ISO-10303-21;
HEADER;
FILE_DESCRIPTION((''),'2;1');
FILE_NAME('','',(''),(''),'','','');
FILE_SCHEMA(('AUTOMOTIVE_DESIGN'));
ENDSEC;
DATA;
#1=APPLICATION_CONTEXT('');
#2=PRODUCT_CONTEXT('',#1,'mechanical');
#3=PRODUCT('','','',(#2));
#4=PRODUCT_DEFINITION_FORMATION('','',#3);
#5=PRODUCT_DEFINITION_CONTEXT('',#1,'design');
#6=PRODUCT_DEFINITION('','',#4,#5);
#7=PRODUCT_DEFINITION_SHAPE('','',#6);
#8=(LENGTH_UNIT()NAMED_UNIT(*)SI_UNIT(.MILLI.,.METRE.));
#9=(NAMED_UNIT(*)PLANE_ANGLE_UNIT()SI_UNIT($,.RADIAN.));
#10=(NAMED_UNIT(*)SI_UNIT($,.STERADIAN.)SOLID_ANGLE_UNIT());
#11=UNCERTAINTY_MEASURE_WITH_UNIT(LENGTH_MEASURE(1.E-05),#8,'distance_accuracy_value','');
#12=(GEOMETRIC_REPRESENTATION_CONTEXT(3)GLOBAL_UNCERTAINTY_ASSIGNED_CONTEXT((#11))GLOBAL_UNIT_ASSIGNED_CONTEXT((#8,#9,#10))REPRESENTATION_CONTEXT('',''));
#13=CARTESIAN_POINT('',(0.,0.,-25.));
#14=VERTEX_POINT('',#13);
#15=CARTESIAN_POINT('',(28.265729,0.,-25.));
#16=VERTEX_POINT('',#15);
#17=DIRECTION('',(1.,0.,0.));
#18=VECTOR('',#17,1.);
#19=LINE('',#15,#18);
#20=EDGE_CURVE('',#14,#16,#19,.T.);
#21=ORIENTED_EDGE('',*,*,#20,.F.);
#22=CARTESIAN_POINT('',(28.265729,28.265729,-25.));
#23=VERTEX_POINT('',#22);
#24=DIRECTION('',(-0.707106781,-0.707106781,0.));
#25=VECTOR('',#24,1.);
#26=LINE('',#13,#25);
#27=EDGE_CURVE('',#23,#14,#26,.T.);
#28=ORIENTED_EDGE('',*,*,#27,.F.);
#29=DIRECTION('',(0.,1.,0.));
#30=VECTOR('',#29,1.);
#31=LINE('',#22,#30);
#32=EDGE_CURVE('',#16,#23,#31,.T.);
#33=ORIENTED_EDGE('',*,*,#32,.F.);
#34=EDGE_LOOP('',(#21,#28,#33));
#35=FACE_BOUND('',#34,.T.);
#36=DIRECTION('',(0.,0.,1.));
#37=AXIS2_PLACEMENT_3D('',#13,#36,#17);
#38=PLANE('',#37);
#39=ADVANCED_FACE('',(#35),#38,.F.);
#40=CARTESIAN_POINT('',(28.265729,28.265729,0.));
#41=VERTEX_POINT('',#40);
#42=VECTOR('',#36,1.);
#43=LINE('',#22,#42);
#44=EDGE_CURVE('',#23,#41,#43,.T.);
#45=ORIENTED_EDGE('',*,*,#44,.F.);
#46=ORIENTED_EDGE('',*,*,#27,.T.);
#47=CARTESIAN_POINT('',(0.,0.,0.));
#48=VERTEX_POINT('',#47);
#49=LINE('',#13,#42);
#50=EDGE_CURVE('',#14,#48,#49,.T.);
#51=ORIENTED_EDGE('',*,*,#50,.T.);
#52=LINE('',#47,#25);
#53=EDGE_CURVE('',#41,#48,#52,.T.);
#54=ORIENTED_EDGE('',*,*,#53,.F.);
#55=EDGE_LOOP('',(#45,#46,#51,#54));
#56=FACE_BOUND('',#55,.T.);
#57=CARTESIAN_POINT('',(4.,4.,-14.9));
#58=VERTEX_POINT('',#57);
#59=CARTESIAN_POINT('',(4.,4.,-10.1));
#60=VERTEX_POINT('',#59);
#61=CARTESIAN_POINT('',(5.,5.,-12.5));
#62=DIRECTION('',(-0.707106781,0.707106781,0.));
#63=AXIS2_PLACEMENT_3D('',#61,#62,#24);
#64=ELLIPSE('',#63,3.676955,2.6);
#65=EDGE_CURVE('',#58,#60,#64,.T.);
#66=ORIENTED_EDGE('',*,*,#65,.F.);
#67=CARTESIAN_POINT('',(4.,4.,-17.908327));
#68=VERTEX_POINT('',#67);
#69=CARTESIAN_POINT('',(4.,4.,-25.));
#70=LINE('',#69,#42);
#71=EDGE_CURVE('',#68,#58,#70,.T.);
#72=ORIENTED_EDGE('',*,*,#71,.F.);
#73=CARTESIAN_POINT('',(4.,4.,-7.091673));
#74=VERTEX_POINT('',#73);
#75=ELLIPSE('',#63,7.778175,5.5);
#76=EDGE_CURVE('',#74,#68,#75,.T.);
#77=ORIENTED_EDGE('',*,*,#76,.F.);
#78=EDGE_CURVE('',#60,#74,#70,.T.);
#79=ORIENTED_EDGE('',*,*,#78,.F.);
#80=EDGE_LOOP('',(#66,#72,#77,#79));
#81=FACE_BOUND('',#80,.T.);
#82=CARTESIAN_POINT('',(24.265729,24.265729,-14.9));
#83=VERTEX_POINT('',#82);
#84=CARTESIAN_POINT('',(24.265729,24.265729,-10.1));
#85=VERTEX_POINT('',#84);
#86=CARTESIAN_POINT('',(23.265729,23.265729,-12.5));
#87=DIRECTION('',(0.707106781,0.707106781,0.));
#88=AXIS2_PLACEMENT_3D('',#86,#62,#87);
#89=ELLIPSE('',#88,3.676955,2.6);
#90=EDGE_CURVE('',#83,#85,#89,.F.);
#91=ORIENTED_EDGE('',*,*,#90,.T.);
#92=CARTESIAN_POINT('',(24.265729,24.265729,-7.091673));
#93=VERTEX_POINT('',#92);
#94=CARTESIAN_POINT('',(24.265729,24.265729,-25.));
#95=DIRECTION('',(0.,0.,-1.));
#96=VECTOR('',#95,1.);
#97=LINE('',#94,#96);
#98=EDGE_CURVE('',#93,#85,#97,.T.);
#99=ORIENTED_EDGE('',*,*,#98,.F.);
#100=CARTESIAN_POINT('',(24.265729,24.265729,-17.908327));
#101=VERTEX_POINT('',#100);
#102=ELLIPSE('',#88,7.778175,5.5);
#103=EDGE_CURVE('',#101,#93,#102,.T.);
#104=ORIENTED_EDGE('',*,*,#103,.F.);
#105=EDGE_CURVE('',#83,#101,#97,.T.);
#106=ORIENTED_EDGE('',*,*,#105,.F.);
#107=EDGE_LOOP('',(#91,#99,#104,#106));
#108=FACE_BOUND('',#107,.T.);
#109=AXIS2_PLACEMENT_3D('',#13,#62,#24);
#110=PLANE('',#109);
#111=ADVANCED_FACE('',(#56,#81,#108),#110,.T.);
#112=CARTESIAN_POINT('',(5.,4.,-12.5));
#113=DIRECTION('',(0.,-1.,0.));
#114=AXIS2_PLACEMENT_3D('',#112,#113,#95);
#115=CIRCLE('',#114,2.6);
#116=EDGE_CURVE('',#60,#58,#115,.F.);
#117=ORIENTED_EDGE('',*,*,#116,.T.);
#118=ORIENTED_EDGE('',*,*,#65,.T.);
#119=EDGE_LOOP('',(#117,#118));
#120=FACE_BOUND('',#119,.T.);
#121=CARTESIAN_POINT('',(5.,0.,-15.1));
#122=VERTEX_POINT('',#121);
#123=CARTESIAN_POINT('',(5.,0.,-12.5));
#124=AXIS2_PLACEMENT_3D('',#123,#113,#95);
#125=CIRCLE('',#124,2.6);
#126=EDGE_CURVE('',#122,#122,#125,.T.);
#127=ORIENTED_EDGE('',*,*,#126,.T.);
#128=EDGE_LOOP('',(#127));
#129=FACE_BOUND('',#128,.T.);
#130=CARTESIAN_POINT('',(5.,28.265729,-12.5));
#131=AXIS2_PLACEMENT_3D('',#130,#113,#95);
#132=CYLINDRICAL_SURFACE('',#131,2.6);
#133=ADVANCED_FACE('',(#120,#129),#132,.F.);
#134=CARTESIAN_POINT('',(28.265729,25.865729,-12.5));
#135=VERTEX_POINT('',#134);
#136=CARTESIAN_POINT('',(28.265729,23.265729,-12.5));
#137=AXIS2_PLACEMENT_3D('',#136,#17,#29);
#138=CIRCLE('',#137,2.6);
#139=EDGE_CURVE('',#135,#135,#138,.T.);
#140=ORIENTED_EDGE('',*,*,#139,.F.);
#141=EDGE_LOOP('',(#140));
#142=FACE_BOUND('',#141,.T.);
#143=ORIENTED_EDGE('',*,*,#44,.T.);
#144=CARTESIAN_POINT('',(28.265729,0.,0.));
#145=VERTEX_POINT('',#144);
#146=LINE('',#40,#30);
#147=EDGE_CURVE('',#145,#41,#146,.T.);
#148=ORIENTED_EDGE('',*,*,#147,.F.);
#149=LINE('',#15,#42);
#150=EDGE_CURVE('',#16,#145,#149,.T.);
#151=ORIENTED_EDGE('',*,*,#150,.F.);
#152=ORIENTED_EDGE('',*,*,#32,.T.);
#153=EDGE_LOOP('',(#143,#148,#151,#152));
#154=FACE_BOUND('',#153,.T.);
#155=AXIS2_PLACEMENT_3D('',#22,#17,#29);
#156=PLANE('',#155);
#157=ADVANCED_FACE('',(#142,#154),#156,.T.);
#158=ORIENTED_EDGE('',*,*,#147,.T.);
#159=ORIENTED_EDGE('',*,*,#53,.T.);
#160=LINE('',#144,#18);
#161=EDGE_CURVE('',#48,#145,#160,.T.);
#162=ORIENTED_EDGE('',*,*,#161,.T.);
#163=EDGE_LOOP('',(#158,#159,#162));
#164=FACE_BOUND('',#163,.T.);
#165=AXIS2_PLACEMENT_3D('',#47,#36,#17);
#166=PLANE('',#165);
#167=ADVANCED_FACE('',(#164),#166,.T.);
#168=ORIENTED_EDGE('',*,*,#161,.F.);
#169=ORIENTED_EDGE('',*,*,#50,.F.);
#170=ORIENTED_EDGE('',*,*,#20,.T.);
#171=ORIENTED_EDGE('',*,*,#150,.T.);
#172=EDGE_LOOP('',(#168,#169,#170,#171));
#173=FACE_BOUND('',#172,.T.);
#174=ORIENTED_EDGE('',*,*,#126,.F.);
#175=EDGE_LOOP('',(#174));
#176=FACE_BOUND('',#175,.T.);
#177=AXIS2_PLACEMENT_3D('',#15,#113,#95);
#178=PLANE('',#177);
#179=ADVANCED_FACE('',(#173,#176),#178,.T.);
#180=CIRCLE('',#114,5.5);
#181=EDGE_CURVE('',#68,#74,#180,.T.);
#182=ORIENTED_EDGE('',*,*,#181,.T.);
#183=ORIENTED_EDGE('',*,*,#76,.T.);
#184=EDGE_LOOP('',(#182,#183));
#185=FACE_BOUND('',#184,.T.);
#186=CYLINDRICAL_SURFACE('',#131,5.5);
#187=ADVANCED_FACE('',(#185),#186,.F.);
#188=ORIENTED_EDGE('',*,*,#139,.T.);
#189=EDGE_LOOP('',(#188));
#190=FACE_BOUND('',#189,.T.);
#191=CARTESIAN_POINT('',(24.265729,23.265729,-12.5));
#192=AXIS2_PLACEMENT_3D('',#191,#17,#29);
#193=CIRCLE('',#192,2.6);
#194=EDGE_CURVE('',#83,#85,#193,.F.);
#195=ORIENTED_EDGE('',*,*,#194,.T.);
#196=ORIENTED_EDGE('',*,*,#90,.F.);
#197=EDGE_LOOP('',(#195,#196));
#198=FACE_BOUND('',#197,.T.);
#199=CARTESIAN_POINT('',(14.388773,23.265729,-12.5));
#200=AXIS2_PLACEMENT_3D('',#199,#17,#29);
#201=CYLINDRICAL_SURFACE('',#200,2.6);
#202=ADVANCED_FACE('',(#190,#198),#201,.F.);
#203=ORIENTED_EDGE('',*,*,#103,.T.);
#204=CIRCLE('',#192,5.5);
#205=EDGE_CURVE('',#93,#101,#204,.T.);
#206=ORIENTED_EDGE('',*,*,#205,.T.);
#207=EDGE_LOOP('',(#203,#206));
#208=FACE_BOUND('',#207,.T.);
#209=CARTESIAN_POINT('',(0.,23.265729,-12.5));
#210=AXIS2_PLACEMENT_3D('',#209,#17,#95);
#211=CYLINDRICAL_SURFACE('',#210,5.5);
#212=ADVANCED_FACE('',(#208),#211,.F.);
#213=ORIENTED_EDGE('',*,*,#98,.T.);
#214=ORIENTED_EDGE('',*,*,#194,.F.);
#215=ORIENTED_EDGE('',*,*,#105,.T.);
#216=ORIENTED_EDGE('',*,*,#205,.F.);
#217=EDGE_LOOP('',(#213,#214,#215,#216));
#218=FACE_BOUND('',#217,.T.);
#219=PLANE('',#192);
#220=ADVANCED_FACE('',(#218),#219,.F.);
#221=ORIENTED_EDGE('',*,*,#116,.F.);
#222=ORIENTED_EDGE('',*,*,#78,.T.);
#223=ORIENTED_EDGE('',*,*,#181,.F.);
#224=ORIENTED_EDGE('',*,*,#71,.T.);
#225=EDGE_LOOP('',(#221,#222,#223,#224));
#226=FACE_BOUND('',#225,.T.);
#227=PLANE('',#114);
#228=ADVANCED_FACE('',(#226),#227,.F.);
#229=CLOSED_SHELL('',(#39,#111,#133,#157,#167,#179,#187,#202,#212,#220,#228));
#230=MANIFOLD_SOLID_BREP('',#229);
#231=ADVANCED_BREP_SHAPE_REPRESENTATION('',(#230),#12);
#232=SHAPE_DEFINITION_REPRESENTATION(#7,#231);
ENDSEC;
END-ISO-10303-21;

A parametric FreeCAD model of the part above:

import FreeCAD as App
import Part
import Sketcher
from FreeCAD import Vector
Q = App.Units.Quantity

doc = App.newDocument("Part")
body = doc.addObject("PartDesign::Body", "Body")

# Sketch on XY plane
sketch1 = body.newObject("Sketcher::SketchObject", "Sketch")
sketch1.AttachmentSupport = (doc.getObject("XY_Plane"), [""])
sketch1.MapMode = "FlatFace"
sketch1.addGeometry(Part.LineSegment(Vector(28, 28, 0), Vector(0, 0, 0)), False)
sketch1.addGeometry(Part.LineSegment(Vector(0, 0, 0), Vector(28, 0, 0)), False)
sketch1.addGeometry(Part.LineSegment(Vector(28, 0, 0), Vector(28, 28, 0)), False)
sketch1.addConstraint(Sketcher.Constraint("Coincident", 0, 2, 1, 1))
sketch1.addConstraint(Sketcher.Constraint("Coincident", 1, 2, 2, 1))
sketch1.addConstraint(Sketcher.Constraint("Coincident", 2, 2, 0, 1))
sketch1.addConstraint(Sketcher.Constraint("Horizontal", 1))
sketch1.addConstraint(Sketcher.Constraint("Vertical", 2))
sketch1.addConstraint(Sketcher.Constraint("Coincident", 0, 2, -1, 1))
sketch1.addConstraint(Sketcher.Constraint("Equal", 1, 2))
sketch1.addConstraint(Sketcher.Constraint("DistanceX", 1, 1, 1, 2, Q("28.265729 mm")))
pad1 = body.newObject("PartDesign::Pad", "Pad")
pad1.Profile = sketch1
pad1.Length = 25
pad1.Reversed = True

# Sketch on XZ plane
sketch2 = body.newObject("Sketcher::SketchObject", "Sketch001")
sketch2.AttachmentSupport = (doc.getObject("XZ_Plane"), [""])
sketch2.MapMode = "FlatFace"
sketch2.addGeometry(Part.Circle(Vector(5, -12.5, 0), Vector(0, 0, 1), 2.6), False)
sketch2.addConstraint(Sketcher.Constraint("Diameter", 0, Q("5.2 mm")))
sketch2.addConstraint(Sketcher.Constraint("DistanceX", -1, 1, 0, 3, Q("5 mm")))
sketch2.addConstraint(Sketcher.Constraint("DistanceY", 0, 3, -1, 1, Q("12.5 mm")))
pocket1 = body.newObject("PartDesign::Pocket", "Pocket")
pocket1.Profile = sketch2
pocket1.Type = "ThroughAll"

# Sketch on YZ plane
sketch3 = body.newObject("Sketcher::SketchObject", "Sketch002")
sketch3.AttachmentSupport = (doc.getObject("YZ_Plane"), [""])
sketch3.MapMode = "FlatFace"
sketch3.AttachmentOffset = App.Placement(Vector(0, 0, 28.265729), App.Rotation())
sketch3.addGeometry(Part.Circle(Vector(23.3, -12.5, 0), Vector(0, 0, 1), 2.6), False)
sketch3.addConstraint(Sketcher.Constraint("Diameter", 0, Q("5.2 mm")))
sketch3.addConstraint(Sketcher.Constraint("DistanceY", 0, 3, -1, 1, Q("12.5 mm")))
sketch3.addConstraint(Sketcher.Constraint("DistanceX", -1, 1, 0, 3, Q("23.265729 mm")))
pocket2 = body.newObject("PartDesign::Pocket", "Pocket001")
pocket2.Profile = sketch3
pocket2.Type = "UpToFirst"

# Sketch on YZ plane
sketch4 = body.newObject("Sketcher::SketchObject", "Sketch003")
sketch4.AttachmentSupport = (doc.getObject("YZ_Plane"), [""])
sketch4.MapMode = "FlatFace"
sketch4.AttachmentOffset = App.Placement(Vector(0, 0, 28.265729), App.Rotation())
sketch4.addGeometry(Part.Circle(Vector(23.3, -12.5, 0), Vector(0, 0, 1), 2.6), False)
sketch4.addConstraint(Sketcher.Constraint("Diameter", 0, Q("5.2 mm")))
sketch4.addConstraint(Sketcher.Constraint("DistanceY", 0, 3, -1, 1, Q("12.5 mm")))
sketch4.addConstraint(Sketcher.Constraint("DistanceX", -1, 1, 0, 3, Q("23.265729 mm")))
pocket3 = body.newObject("PartDesign::Pocket", "Pocket002")
pocket3.Profile = sketch4
pocket3.Length = 1
pocket3.Reversed = True

# Sketch on YZ plane
sketch5 = body.newObject("Sketcher::SketchObject", "Sketch004")
sketch5.AttachmentSupport = (doc.getObject("YZ_Plane"), [""])
sketch5.MapMode = "FlatFace"
sketch5.AttachmentOffset = App.Placement(Vector(0, 0, 24.265729), App.Rotation())
sketch5.addGeometry(Part.Circle(Vector(23, -12, 0), Vector(0, 0, 1), 6), False)
sketch5.addConstraint(Sketcher.Constraint("Diameter", 0, Q("11 mm")))
sketch5.addConstraint(Sketcher.Constraint("DistanceY", 0, 3, -1, 1, Q("12.5 mm")))
sketch5.addConstraint(Sketcher.Constraint("DistanceX", -1, 1, 0, 3, Q("23.265729 mm")))
pocket4 = body.newObject("PartDesign::Pocket", "Pocket003")
pocket4.Profile = sketch5
pocket4.Type = "ThroughAll"

# Sketch on XZ plane
sketch6 = body.newObject("Sketcher::SketchObject", "Sketch005")
sketch6.AttachmentSupport = (doc.getObject("XZ_Plane"), [""])
sketch6.MapMode = "FlatFace"
sketch6.AttachmentOffset = App.Placement(Vector(0, 0, -4), App.Rotation())
sketch6.addGeometry(Part.Circle(Vector(5, -12, 0), Vector(0, 0, 1), 6), False)
sketch6.addConstraint(Sketcher.Constraint("Diameter", 0, Q("11 mm")))
sketch6.addConstraint(Sketcher.Constraint("DistanceX", -1, 1, 0, 3, Q("5 mm")))
sketch6.addConstraint(Sketcher.Constraint("DistanceY", 0, 3, -1, 1, Q("12.5 mm")))
pocket5 = body.newObject("PartDesign::Pocket", "Pocket004")
pocket5.Profile = sketch6
pocket5.Type = "ThroughAll"

doc.recompute()
